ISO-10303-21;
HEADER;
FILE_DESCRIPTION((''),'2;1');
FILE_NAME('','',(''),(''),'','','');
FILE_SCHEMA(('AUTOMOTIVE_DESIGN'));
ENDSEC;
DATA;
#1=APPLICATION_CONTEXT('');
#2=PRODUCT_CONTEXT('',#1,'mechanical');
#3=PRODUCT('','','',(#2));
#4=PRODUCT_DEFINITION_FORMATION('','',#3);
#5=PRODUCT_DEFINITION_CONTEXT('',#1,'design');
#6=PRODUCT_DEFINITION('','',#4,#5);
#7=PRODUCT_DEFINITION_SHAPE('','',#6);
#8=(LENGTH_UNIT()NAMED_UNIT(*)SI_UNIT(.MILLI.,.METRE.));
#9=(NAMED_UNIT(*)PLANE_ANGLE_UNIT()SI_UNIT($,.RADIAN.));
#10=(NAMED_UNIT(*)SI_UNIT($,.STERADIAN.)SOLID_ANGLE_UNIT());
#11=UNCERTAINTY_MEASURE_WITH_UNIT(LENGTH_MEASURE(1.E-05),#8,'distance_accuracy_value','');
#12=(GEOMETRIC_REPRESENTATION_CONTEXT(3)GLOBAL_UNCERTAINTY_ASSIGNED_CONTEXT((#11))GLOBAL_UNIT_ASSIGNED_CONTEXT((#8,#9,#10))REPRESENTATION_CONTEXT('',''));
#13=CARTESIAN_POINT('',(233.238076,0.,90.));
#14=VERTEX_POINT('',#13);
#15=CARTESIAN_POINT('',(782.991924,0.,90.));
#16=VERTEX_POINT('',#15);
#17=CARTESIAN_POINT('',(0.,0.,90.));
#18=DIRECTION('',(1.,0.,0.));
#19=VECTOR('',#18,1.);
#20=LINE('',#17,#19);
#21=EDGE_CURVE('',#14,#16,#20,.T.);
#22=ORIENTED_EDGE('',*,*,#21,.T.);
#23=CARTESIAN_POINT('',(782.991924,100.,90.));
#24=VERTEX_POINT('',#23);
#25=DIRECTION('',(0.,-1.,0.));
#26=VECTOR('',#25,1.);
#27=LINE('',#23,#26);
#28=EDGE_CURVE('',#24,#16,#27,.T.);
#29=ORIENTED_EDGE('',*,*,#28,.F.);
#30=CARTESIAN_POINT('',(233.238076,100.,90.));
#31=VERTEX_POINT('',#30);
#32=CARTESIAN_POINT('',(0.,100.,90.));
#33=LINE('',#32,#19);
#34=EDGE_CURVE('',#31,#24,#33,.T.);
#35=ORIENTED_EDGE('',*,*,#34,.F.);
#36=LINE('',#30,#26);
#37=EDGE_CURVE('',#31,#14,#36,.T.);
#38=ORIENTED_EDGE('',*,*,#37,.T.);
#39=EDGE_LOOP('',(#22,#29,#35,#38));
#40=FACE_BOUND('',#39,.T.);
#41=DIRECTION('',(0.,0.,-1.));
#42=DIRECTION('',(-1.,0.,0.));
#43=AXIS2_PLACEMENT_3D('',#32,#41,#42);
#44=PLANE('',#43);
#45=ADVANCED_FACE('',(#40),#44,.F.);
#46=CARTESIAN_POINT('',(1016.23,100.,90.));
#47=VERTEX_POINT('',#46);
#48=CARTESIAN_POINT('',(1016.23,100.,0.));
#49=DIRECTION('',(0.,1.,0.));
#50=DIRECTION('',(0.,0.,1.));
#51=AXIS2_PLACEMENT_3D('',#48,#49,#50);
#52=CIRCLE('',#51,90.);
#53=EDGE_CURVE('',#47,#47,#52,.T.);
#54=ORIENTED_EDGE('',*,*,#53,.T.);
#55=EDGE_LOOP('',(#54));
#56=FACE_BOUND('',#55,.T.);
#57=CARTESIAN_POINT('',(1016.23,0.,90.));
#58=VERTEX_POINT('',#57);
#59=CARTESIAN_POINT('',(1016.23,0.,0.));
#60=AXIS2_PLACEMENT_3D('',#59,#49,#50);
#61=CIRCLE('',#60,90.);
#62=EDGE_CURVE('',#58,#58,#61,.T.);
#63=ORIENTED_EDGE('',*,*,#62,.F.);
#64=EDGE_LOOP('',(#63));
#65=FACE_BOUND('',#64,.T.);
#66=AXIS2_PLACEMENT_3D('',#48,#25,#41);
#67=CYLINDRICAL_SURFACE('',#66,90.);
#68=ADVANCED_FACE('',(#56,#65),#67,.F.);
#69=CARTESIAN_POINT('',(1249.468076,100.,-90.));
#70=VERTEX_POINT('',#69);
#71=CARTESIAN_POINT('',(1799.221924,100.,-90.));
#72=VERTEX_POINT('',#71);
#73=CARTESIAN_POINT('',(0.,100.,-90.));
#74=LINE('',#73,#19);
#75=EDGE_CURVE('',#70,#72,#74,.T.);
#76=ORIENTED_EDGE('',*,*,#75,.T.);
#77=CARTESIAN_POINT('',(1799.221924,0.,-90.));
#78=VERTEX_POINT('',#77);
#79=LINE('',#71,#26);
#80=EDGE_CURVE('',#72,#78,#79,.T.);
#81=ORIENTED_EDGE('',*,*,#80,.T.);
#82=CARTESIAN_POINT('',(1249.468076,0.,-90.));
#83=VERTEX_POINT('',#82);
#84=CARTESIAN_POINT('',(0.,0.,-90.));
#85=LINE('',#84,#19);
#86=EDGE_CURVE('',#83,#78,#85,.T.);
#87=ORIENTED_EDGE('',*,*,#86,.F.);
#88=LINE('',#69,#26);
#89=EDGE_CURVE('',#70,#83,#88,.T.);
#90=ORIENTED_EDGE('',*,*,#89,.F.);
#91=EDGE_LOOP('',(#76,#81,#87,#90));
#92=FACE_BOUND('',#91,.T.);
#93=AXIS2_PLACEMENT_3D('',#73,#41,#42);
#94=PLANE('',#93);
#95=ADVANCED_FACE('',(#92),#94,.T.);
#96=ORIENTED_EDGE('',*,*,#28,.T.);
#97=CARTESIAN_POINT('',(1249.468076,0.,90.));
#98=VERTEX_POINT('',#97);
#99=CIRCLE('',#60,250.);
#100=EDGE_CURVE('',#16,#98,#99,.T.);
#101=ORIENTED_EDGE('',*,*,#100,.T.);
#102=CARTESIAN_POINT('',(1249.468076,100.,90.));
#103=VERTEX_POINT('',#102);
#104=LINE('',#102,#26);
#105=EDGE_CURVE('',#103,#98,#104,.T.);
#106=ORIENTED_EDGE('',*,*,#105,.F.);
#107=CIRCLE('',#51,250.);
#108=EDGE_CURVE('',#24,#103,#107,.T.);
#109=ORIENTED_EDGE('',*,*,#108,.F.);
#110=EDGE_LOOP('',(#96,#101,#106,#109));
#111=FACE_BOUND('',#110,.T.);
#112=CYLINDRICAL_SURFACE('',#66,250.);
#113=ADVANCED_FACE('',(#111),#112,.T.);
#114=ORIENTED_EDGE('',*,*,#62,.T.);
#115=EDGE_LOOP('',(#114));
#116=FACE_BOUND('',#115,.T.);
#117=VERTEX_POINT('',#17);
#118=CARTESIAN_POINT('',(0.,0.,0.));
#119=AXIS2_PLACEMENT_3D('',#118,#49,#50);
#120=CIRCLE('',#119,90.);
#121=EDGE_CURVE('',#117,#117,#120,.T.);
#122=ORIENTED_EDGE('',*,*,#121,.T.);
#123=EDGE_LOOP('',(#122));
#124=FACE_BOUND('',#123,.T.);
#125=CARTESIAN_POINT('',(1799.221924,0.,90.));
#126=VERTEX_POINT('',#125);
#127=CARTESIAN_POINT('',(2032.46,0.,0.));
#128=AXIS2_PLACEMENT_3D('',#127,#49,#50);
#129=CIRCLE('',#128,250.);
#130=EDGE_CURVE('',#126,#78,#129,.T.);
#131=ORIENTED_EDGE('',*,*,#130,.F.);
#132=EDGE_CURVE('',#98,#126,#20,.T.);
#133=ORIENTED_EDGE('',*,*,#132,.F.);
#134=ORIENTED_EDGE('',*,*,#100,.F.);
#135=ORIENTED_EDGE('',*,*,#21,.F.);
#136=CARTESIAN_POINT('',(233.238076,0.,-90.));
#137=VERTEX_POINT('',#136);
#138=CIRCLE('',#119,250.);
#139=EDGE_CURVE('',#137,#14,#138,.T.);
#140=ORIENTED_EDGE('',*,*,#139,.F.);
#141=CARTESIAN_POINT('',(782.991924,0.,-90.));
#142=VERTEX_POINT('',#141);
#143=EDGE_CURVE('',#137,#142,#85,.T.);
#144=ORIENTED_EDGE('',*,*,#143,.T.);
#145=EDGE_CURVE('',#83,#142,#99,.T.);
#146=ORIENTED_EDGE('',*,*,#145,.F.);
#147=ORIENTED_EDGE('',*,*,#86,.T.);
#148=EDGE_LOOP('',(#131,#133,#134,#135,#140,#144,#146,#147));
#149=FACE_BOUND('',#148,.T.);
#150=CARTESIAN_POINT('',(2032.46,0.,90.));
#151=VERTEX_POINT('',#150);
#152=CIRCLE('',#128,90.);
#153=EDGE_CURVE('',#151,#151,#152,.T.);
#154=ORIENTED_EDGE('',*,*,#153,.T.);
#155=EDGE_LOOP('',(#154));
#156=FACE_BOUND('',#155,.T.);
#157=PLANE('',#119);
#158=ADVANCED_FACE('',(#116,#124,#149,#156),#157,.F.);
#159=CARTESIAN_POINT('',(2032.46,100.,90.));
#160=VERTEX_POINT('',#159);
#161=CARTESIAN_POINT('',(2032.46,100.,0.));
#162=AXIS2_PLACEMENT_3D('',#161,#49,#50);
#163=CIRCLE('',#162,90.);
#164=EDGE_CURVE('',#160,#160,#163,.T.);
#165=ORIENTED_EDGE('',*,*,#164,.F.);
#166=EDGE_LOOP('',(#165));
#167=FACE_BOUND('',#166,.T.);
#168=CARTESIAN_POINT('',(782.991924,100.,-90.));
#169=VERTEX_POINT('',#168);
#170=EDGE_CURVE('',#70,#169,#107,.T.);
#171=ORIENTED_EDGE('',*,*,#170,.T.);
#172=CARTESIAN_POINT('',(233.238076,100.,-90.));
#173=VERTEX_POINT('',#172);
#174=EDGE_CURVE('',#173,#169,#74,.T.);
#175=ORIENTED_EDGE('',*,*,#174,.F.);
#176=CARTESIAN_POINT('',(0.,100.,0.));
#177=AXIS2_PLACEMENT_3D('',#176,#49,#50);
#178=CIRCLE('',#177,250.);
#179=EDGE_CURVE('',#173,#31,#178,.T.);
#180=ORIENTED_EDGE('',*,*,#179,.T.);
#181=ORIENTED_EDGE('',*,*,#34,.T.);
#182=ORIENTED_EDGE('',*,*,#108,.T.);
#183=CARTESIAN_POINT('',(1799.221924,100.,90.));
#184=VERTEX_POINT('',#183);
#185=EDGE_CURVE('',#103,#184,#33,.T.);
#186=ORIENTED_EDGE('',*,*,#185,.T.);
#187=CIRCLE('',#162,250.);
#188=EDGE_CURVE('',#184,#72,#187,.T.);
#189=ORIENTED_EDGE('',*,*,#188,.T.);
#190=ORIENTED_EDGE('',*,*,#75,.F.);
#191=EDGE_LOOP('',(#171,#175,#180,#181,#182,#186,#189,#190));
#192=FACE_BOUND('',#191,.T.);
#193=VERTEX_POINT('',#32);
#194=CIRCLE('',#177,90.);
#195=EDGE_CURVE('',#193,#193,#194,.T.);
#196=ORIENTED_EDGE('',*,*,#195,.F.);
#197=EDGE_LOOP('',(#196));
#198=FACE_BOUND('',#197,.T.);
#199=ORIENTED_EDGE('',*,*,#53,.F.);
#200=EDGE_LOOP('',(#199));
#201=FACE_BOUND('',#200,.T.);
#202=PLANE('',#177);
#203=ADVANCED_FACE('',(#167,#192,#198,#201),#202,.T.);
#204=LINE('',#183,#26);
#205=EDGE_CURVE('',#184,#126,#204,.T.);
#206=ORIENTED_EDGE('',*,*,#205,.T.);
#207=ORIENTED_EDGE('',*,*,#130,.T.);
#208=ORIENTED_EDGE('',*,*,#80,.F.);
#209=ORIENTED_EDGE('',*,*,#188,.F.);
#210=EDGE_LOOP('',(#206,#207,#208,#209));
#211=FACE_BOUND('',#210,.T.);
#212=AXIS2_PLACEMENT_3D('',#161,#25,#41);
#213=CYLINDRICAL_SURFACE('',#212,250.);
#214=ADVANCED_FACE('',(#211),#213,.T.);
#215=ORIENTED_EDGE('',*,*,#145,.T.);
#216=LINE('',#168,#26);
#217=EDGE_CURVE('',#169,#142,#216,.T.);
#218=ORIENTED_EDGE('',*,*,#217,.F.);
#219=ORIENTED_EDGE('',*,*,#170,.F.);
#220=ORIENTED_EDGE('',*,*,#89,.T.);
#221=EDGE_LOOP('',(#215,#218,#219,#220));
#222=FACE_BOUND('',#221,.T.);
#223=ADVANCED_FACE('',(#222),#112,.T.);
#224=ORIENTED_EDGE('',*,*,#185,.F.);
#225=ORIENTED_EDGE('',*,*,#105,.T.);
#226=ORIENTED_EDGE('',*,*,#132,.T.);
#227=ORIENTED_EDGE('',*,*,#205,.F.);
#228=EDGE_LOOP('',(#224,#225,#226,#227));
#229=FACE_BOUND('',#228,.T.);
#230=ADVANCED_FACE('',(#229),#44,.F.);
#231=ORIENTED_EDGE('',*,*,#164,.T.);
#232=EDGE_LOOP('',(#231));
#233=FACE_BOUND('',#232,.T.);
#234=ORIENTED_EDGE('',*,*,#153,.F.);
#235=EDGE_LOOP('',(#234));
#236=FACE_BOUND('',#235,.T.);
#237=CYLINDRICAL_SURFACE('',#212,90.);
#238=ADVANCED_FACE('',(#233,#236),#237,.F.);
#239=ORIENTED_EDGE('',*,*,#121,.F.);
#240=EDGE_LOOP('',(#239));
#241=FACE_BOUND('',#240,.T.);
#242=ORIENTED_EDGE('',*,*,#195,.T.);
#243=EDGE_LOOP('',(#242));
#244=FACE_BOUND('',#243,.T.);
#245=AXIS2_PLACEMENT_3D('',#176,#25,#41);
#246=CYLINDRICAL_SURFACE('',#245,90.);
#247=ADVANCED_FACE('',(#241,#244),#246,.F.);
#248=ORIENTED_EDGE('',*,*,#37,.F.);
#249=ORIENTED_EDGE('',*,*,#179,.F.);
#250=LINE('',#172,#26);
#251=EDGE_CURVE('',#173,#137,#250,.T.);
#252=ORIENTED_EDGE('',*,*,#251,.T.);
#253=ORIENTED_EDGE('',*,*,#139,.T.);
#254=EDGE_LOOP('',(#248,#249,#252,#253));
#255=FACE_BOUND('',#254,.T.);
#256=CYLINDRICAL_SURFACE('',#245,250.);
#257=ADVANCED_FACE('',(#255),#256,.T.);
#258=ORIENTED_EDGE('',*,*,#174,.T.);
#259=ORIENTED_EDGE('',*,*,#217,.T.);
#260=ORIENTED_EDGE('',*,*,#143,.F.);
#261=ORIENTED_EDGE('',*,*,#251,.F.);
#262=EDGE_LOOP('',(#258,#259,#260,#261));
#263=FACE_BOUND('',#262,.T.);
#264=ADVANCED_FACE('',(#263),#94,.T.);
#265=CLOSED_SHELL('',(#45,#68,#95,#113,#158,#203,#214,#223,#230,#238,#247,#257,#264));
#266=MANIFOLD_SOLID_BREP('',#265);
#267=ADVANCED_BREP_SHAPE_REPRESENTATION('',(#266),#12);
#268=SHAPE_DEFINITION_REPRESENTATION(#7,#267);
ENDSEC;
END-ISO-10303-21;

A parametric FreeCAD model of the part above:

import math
import FreeCAD as App
import Part
import Sketcher

V = App.Vector
Q = App.Units.Quantity

doc = App.newDocument("Part")
body = doc.addObject("PartDesign::Body", "Body")

# Sketch on XZ plane
sketch1 = body.newObject("Sketcher::SketchObject", "Sketch")
sketch1.AttachmentSupport = (doc.getObject("XZ_Plane"), [""])
sketch1.MapMode = "FlatFace"
sketch1.addGeometry(Part.ArcOfCircle(Part.Circle(V(0, 0, 0), V(0, 0, 1), 250), math.radians(21.100196), math.radians(338.899804)), False)
sketch1.addGeometry(Part.LineSegment(V(233.238076, 90, 0), V(782.991924, 90, 0)), False)
sketch1.addGeometry(Part.ArcOfCircle(Part.Circle(V(1016.23, 0, 0), V(0, 0, 1), 250), math.radians(21.100196), math.radians(158.899804)), False)
sketch1.addGeometry(Part.LineSegment(V(1249.468076, 90, 0), V(1799.221924, 90, 0)), False)
sketch1.addGeometry(Part.ArcOfCircle(Part.Circle(V(2032.46, 0, 0), V(0, 0, 1), 250), math.radians(-158.899804), math.radians(158.899804)), False)
sketch1.addGeometry(Part.LineSegment(V(1799.221924, -90, 0), V(1249.468076, -90, 0)), False)
sketch1.addGeometry(Part.ArcOfCircle(Part.Circle(V(1016.23, 0, 0), V(0, 0, 1), 250), math.radians(-158.899804), math.radians(-21.100196)), False)
sketch1.addGeometry(Part.LineSegment(V(782.991924, -90, 0), V(233.238076, -90, 0)), False)
sketch1.addGeometry(Part.Circle(V(0, 0, 0), V(0, 0, 1), 90), False)
sketch1.addGeometry(Part.Circle(V(1016.23, 0, 0), V(0, 0, 1), 90), False)
sketch1.addGeometry(Part.Circle(V(2032.46, 0, 0), V(0, 0, 1), 90), False)
sketch1.addConstraint(Sketcher.Constraint("Coincident", 0, 1, 1, 1))
sketch1.addConstraint(Sketcher.Constraint("Coincident", 1, 2, 2, 2))
sketch1.addConstraint(Sketcher.Constraint("Coincident", 2, 1, 3, 1))
sketch1.addConstraint(Sketcher.Constraint("Coincident", 3, 2, 4, 2))
sketch1.addConstraint(Sketcher.Constraint("Coincident", 4, 1, 5, 1))
sketch1.addConstraint(Sketcher.Constraint("Coincident", 5, 2, 6, 2))
sketch1.addConstraint(Sketcher.Constraint("Coincident", 6, 1, 7, 1))
sketch1.addConstraint(Sketcher.Constraint("Coincident", 7, 2, 0, 2))
sketch1.addConstraint(Sketcher.Constraint("Horizontal", 1))
sketch1.addConstraint(Sketcher.Constraint("Horizontal", 3))
sketch1.addConstraint(Sketcher.Constraint("Horizontal", 5))
sketch1.addConstraint(Sketcher.Constraint("Horizontal", 7))
sketch1.addConstraint(Sketcher.Constraint("Coincident", 0, 3, -1, 1))
sketch1.addConstraint(Sketcher.Constraint("Coincident", 8, 3, -1, 1))
sketch1.addConstraint(Sketcher.Constraint("Coincident", 6, 3, 2, 3))
sketch1.addConstraint(Sketcher.Constraint("Coincident", 9, 3, 2, 3))
sketch1.addConstraint(Sketcher.Constraint("Coincident", 10, 3, 4, 3))
sketch1.addConstraint(Sketcher.Constraint("Equal", 0, 2))
sketch1.addConstraint(Sketcher.Constraint("Equal", 2, 4))
sketch1.addConstraint(Sketcher.Constraint("Equal", 4, 6))
sketch1.addConstraint(Sketcher.Constraint("Equal", 8, 9))
sketch1.addConstraint(Sketcher.Constraint("Equal", 9, 10))
sketch1.addConstraint(Sketcher.Constraint("Symmetric", 3, 2, 4, 1, -1))
sketch1.addConstraint(Sketcher.Constraint("Symmetric", 1, 2, 6, 1, -1))
sketch1.addConstraint(Sketcher.Constraint("Horizontal", 1, 2, 2, 1))
sketch1.addConstraint(Sketcher.Constraint("Equal", 1, 3))
sketch1.addConstraint(Sketcher.Constraint("Diameter", 8, Q("180 mm")))
sketch1.addConstraint(Sketcher.Constraint("Radius", 0, Q("250 mm")))
sketch1.addConstraint(Sketcher.Constraint("DistanceY", -1, 1, 1, 2, Q("90 mm")))
sketch1.addConstraint(Sketcher.Constraint("DistanceX", -1, 1, 2, 3, Q("1016.23 mm")))
pad1 = body.newObject("PartDesign::Pad", "Pad")
pad1.Profile = sketch1
pad1.Length = 100
pad1.Reversed = True

doc.recompute()
